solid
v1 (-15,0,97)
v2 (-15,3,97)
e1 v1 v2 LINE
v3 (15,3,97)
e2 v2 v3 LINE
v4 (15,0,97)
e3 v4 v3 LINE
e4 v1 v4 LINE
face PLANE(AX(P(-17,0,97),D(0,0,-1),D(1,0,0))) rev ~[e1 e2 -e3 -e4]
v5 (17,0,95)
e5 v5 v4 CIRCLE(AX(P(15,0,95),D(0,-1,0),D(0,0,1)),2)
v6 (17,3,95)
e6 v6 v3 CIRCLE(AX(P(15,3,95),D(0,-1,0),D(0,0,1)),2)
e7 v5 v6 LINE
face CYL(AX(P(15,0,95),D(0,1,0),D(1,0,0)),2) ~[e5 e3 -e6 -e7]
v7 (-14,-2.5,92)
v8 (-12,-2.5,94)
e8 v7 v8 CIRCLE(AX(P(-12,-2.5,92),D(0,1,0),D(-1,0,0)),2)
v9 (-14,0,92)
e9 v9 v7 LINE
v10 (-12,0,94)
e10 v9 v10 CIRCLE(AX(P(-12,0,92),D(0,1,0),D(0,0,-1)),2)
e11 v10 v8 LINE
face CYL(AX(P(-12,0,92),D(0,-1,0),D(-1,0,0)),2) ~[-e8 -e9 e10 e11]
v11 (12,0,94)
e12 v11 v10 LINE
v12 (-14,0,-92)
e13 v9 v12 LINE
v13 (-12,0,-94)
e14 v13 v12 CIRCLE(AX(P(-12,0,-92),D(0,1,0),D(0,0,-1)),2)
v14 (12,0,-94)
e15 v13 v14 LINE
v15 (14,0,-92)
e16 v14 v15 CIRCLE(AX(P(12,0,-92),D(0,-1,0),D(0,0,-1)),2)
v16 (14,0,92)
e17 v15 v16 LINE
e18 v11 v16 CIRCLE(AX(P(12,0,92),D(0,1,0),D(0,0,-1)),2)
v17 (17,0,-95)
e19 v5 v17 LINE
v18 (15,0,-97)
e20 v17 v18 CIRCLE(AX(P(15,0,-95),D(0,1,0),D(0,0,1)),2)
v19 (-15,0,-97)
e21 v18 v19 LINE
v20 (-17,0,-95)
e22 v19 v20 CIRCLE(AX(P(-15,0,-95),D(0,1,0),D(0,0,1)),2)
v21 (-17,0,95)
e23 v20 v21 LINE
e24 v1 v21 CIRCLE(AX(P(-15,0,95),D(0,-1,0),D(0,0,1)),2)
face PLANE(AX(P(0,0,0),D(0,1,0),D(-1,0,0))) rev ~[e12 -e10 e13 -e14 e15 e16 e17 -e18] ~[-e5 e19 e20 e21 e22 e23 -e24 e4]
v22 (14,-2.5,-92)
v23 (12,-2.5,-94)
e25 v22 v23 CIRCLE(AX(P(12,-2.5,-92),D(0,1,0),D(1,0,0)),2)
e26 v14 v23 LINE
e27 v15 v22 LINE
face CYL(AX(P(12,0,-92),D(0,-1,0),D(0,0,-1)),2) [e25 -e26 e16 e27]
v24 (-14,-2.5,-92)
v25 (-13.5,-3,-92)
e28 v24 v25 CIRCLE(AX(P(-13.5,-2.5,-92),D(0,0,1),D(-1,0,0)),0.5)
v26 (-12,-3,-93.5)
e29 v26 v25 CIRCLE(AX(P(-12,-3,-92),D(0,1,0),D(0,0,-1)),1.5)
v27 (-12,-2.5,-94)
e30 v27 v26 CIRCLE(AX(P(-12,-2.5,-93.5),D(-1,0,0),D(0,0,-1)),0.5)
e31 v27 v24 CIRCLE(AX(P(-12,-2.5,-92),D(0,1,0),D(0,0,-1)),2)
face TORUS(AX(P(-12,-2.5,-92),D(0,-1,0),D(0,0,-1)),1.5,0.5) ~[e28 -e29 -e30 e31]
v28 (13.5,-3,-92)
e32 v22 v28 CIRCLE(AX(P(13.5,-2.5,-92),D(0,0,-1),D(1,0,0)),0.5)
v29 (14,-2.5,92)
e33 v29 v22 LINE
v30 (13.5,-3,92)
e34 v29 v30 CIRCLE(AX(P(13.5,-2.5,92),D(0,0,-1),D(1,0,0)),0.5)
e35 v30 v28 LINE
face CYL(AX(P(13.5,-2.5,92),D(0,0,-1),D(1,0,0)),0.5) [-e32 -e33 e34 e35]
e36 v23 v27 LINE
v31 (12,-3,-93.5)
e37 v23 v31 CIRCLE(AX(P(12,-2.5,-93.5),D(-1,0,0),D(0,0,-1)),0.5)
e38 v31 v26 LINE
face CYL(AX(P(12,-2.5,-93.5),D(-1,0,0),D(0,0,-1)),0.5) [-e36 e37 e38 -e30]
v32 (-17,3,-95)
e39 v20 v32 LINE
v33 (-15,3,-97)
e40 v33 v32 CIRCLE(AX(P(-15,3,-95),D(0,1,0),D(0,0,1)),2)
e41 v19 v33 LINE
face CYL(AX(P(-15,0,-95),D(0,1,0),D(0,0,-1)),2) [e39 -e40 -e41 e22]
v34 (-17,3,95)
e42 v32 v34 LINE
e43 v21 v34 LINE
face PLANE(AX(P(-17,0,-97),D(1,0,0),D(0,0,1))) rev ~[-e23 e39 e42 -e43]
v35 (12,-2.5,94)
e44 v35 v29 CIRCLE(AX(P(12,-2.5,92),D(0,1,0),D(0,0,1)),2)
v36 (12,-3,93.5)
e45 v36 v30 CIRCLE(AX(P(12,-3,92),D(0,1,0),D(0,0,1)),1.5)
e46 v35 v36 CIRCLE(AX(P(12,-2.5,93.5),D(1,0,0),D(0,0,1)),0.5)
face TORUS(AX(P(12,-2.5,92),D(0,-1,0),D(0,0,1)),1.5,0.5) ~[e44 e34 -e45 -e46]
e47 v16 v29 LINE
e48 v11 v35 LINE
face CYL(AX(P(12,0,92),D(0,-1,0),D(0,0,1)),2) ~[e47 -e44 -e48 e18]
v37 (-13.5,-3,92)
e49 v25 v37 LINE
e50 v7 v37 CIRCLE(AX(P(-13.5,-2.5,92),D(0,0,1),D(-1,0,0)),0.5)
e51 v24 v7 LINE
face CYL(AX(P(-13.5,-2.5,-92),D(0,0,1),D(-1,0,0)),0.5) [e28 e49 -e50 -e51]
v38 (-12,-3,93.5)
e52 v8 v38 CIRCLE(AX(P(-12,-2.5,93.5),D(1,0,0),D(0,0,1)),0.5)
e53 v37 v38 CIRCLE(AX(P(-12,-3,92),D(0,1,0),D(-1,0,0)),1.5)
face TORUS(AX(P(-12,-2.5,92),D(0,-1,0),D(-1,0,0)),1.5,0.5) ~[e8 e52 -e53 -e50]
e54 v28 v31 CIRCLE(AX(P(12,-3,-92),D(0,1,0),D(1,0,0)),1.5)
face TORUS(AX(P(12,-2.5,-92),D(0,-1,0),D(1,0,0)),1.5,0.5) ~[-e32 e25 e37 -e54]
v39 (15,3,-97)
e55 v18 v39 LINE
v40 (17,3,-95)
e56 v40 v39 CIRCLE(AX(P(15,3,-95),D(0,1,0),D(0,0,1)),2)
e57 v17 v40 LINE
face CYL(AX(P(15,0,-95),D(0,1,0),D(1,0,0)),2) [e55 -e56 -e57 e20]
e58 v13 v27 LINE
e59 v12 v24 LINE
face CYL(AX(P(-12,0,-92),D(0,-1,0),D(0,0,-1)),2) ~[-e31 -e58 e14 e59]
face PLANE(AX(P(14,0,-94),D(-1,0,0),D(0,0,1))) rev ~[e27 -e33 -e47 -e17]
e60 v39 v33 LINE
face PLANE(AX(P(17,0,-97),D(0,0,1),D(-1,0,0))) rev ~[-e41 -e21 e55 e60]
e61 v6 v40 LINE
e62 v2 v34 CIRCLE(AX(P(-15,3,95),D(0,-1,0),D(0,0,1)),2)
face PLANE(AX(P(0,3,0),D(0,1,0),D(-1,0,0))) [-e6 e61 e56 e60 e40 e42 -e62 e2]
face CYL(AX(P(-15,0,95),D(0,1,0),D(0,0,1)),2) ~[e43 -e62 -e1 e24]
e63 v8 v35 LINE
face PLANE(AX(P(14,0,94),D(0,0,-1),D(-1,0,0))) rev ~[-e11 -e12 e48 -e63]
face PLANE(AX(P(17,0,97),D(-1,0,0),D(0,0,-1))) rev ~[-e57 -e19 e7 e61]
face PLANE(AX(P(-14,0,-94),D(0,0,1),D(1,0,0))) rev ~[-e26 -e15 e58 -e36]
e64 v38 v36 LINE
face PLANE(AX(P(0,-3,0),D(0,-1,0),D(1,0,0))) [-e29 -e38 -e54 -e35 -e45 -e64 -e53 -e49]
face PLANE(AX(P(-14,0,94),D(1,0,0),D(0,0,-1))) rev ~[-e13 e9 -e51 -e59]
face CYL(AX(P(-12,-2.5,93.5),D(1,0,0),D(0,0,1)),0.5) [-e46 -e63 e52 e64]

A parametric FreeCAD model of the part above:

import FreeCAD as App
import Part
import Sketcher
from FreeCAD import Vector
Q = App.Units.Quantity


def edges_at(feature, points):
    """Names of the edges that pass closest to the given points."""
    edges = feature.Shape.Edges
    near = lambda p: min(range(len(edges)), key=lambda i: edges[i].distToShape(Part.Vertex(*p))[0])
    return sorted({f"Edge{near(p) + 1}" for p in points})

doc = App.newDocument("Part")
body = doc.addObject("PartDesign::Body", "Body")

# Sketch on XZ plane
sketch1 = body.newObject("Sketcher::SketchObject", "Sketch")
sketch1.AttachmentSupport = (doc.getObject("XZ_Plane"), [""])
sketch1.MapMode = "FlatFace"
sketch1.addGeometry([
    Part.LineSegment(Vector(17, 97, 0), Vector(17, -97, 0)),
    Part.LineSegment(Vector(17, -97, 0), Vector(-17, -97, 0)),
    Part.LineSegment(Vector(-17, -97, 0), Vector(-17, 97, 0)),
    Part.LineSegment(Vector(-17, 97, 0), Vector(17, 97, 0)),
], False)
sketch1.addConstraint([
    Sketcher.Constraint("Coincident", 0, 2, 1, 1),
    Sketcher.Constraint("Coincident", 1, 2, 2, 1),
    Sketcher.Constraint("Coincident", 2, 2, 3, 1),
    Sketcher.Constraint("Coincident", 3, 2, 0, 1),
    Sketcher.Constraint("Vertical", 0),
    Sketcher.Constraint("Horizontal", 1),
    Sketcher.Constraint("Vertical", 2),
    Sketcher.Constraint("Horizontal", 3),
    Sketcher.Constraint("Symmetric", 0, 2, 2, 2, -1, 1),
    Sketcher.Constraint("DistanceX", 1, 2, 1, 1, Q("34 mm")),
    Sketcher.Constraint("DistanceY", 0, 2, 0, 1, Q("194 mm")),
])
pad1 = body.newObject("PartDesign::Pad", "Pad")
pad1.Profile = sketch1
pad1.Length = 3
pad1.Reversed = True

# Sketch on XZ plane
sketch2 = body.newObject("Sketcher::SketchObject", "Sketch001")
sketch2.AttachmentSupport = (doc.getObject("XZ_Plane"), [""])
sketch2.MapMode = "FlatFace"
sketch2.addGeometry([
    Part.LineSegment(Vector(14, -94, 0), Vector(14, 94, 0)),
    Part.LineSegment(Vector(14, 94, 0), Vector(-14, 94, 0)),
    Part.LineSegment(Vector(-14, 94, 0), Vector(-14, -94, 0)),
    Part.LineSegment(Vector(-14, -94, 0), Vector(14, -94, 0)),
], False)
sketch2.addConstraint([
    Sketcher.Constraint("Coincident", 0, 2, 1, 1),
    Sketcher.Constraint("Coincident", 1, 2, 2, 1),
    Sketcher.Constraint("Coincident", 2, 2, 3, 1),
    Sketcher.Constraint("Coincident", 3, 2, 0, 1),
    Sketcher.Constraint("Vertical", 0),
    Sketcher.Constraint("Horizontal", 1),
    Sketcher.Constraint("Vertical", 2),
    Sketcher.Constraint("Horizontal", 3),
    Sketcher.Constraint("Symmetric", 0, 2, 2, 2, -1, 1),
    Sketcher.Constraint("DistanceX", 1, 2, 1, 1, Q("28 mm")),
    Sketcher.Constraint("DistanceY", 0, 1, 0, 2, Q("188 mm")),
])
pad2 = body.newObject("PartDesign::Pad", "Pad001")
pad2.Profile = sketch2
pad2.Length = 3
doc.recompute()

fillet = body.newObject("PartDesign::Fillet", "Fillet")
fillet.Base = (pad2, edges_at(pad2, [
    (17, 1.5, 97),
    (14, -1.5, 94),
    (-14, -1.5, 94),
    (-17, 1.5, 97),
    (14, -1.5, -94),
    (17, 1.5, -97),
    (-17, 1.5, -97),
    (-14, -1.5, -94),
]))
fillet.Radius = 2
doc.recompute()

fillet2 = body.newObject("PartDesign::Fillet", "Fillet001")
fillet2.Base = (fillet, edges_at(fillet, [
    (-13.414, -3, 93.414),
    (-14, -3, 0),
    (-13.414, -3, -93.414),
    (0, -3, -94),
    (13.414, -3, -93.414),
    (14, -3, 0),
    (13.414, -3, 93.414),
    (0, -3, 94),
]))
fillet2.Radius = 0.5

doc.recompute()
